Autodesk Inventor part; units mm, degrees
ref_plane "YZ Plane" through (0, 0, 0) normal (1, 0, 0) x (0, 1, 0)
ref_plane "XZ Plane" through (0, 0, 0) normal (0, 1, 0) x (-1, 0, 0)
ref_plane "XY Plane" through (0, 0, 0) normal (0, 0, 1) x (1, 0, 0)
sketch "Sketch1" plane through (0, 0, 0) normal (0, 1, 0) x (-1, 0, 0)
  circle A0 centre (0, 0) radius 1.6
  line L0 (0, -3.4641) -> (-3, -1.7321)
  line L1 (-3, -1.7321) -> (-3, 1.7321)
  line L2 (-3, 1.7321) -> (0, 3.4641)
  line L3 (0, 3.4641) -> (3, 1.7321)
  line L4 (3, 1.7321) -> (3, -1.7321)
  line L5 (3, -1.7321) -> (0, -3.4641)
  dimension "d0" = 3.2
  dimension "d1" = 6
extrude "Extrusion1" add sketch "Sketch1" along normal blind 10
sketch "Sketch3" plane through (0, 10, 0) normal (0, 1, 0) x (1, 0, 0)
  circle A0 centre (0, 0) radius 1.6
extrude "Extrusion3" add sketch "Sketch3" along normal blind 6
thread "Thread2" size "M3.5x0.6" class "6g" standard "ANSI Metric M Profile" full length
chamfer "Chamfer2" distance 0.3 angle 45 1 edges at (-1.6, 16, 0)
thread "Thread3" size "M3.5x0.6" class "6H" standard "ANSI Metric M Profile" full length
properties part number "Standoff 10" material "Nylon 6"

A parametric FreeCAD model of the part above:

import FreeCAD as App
import Part
import Sketcher

V = App.Vector
Q = App.Units.Quantity


def edges_at(feature, points):
    """Names of the edges that pass closest to the given points."""
    edges = feature.Shape.Edges
    near = lambda p: min(range(len(edges)), key=lambda i: edges[i].distToShape(Part.Vertex(*p))[0])
    return sorted({f"Edge{near(p) + 1}" for p in points})

doc = App.newDocument("Part")
body = doc.addObject("PartDesign::Body", "Body")
body.AllowCompound = True

# Sketch on XZ plane
sketch1 = doc.addObject("Sketcher::SketchObject", "Sketch")
body.addObject(sketch1)
sketch1.AttachmentSupport = (doc.XZ_Plane, [""])
sketch1.MapMode = "FlatFace"
sketch1.addGeometry(Part.LineSegment(V(3, -1.7321, 0), V(0, -3.4641, 0)), False)
sketch1.addGeometry(Part.LineSegment(V(0, -3.4641, 0), V(-3, -1.7321, 0)), False)
sketch1.addGeometry(Part.LineSegment(V(-3, -1.7321, 0), V(-3, 1.7321, 0)), False)
sketch1.addGeometry(Part.LineSegment(V(-3, 1.7321, 0), V(0, 3.4641, 0)), False)
sketch1.addGeometry(Part.LineSegment(V(0, 3.4641, 0), V(3, 1.7321, 0)), False)
sketch1.addGeometry(Part.LineSegment(V(3, 1.7321, 0), V(3, -1.7321, 0)), False)
sketch1.addGeometry(Part.Circle(V(0, 0, 0), V(0, 0, 1), 1.6), False)
sketch1.addConstraint(Sketcher.Constraint("Coincident", 0, 2, 1, 1))
sketch1.addConstraint(Sketcher.Constraint("Coincident", 1, 2, 2, 1))
sketch1.addConstraint(Sketcher.Constraint("Coincident", 2, 2, 3, 1))
sketch1.addConstraint(Sketcher.Constraint("Coincident", 3, 2, 4, 1))
sketch1.addConstraint(Sketcher.Constraint("Coincident", 4, 2, 5, 1))
sketch1.addConstraint(Sketcher.Constraint("Coincident", 5, 2, 0, 1))
sketch1.addConstraint(Sketcher.Constraint("Vertical", 2))
sketch1.addConstraint(Sketcher.Constraint("Vertical", 5))
sketch1.addConstraint(Sketcher.Constraint("Coincident", 6, 3, -1, 1))
sketch1.addConstraint(Sketcher.Constraint("Symmetric", 0, 2, 3, 2, -1, 1))
sketch1.addConstraint(Sketcher.Constraint("Symmetric", 1, 2, 4, 2, -1, 1))
sketch1.addConstraint(Sketcher.Constraint("PointOnObject", 0, 2, -2))
sketch1.addConstraint(Sketcher.Constraint("Parallel", 0, 3))
sketch1.addConstraint(Sketcher.Constraint("Horizontal", 2, 2, 4, 2))
sketch1.addConstraint(Sketcher.Constraint("Diameter", 6, Q("3.2 mm")))
sketch1.addConstraint(Sketcher.Constraint("DistanceX", 2, 2, 4, 2, Q("6 mm")))
sketch1.addConstraint(Sketcher.Constraint("Angle", 0, Q("-150.0007 deg")))
sketch1.addConstraint(Sketcher.Constraint("DistanceY", 2, 1, 2, 2, Q("3.4642 mm")))
pad1 = doc.addObject("PartDesign::Pad", "Pad")
body.addObject(pad1)
pad1.Profile = sketch1
pad1.Length = 10
pad1.Reversed = True

# Sketch on XZ plane
sketch2 = doc.addObject("Sketcher::SketchObject", "Sketch001")
body.addObject(sketch2)
sketch2.AttachmentSupport = (doc.XZ_Plane, [""])
sketch2.MapMode = "FlatFace"
sketch2.AttachmentOffset = App.Placement(V(0, 0, -10), App.Rotation())
sketch2.addGeometry(Part.Circle(V(0, 0, 0), V(0, 0, 1), 1.6), False)
sketch2.addConstraint(Sketcher.Constraint("Coincident", 0, 3, -1, 1))
sketch2.addConstraint(Sketcher.Constraint("Diameter", 0, Q("3.2 mm")))
pad2 = doc.addObject("PartDesign::Pad", "Pad001")
body.addObject(pad2)
pad2.Profile = sketch2
pad2.Length = 6
pad2.Reversed = True
doc.recompute()

chamfer = doc.addObject("PartDesign::Chamfer", "Chamfer")
body.addObject(chamfer)
chamfer.Base = (pad2, edges_at(pad2, [(-1.6, 16, 0)]))
chamfer.Size = 0.3

doc.recompute()
